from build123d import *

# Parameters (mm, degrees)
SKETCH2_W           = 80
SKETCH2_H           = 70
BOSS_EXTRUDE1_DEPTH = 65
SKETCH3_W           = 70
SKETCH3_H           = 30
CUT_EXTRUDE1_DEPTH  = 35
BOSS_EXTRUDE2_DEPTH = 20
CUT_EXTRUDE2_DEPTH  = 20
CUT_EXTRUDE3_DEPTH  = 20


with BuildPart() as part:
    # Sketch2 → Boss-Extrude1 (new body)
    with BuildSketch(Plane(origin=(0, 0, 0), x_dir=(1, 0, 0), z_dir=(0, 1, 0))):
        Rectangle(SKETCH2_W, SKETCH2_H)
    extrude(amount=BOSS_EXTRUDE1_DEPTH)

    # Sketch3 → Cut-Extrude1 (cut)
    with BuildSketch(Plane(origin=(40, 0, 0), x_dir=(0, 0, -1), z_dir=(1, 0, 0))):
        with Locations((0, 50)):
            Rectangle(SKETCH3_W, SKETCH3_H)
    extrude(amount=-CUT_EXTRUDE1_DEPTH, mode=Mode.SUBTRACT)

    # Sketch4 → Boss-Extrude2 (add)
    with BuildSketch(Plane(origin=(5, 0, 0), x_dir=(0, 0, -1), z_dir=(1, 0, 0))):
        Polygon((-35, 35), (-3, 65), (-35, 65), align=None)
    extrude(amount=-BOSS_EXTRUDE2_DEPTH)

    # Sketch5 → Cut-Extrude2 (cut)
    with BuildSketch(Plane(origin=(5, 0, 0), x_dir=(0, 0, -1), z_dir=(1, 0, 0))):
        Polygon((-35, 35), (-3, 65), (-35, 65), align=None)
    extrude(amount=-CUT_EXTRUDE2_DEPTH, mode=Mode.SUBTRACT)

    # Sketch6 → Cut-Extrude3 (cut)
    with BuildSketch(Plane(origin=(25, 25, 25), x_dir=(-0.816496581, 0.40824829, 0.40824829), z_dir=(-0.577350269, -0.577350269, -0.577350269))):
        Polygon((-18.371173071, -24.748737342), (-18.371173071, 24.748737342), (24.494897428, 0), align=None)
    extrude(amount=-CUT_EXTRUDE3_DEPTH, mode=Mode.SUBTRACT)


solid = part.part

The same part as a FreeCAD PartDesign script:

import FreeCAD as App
import Part
import Sketcher

V = App.Vector
Q = App.Units.Quantity

doc = App.newDocument("Part")
body = doc.addObject("PartDesign::Body", "Body")
body.AllowCompound = True

# Sketch on XZ plane
sketch1 = body.newObject("Sketcher::SketchObject", "Sketch")
sketch1.AttachmentSupport = (doc.getObject("XZ_Plane"), [""])
sketch1.MapMode = "FlatFace"
sketch1.addGeometry(Part.LineSegment(V(-40, -35, 0), V(-40, 35, 0)), False)
sketch1.addGeometry(Part.LineSegment(V(-40, 35, 0), V(40, 35, 0)), False)
sketch1.addGeometry(Part.LineSegment(V(40, 35, 0), V(40, -35, 0)), False)
sketch1.addGeometry(Part.LineSegment(V(40, -35, 0), V(-40, -35, 0)), False)
sketch1.addConstraint(Sketcher.Constraint("Coincident", 0, 2, 1, 1))
sketch1.addConstraint(Sketcher.Constraint("Coincident", 1, 2, 2, 1))
sketch1.addConstraint(Sketcher.Constraint("Coincident", 2, 2, 3, 1))
sketch1.addConstraint(Sketcher.Constraint("Coincident", 3, 2, 0, 1))
sketch1.addConstraint(Sketcher.Constraint("Vertical", 0))
sketch1.addConstraint(Sketcher.Constraint("Horizontal", 1))
sketch1.addConstraint(Sketcher.Constraint("Vertical", 2))
sketch1.addConstraint(Sketcher.Constraint("Horizontal", 3))
sketch1.addConstraint(Sketcher.Constraint("Symmetric", 0, 2, 2, 2, -1, 1))
sketch1.addConstraint(Sketcher.Constraint("DistanceX", 1, 1, 1, 2, 80.0))
sketch1.addConstraint(Sketcher.Constraint("DistanceY", 0, 1, 0, 2, 70.0))
pad1 = body.newObject("PartDesign::Pad", "Pad")
pad1.Profile = sketch1
pad1.Length = 65
pad1.Reversed = True

# Sketch on YZ plane
sketch2 = body.newObject("Sketcher::SketchObject", "Sketch001")
sketch2.AttachmentSupport = (doc.getObject("YZ_Plane"), [""])
sketch2.MapMode = "FlatFace"
sketch2.AttachmentOffset = App.Placement(V(0, 0, 40), App.Rotation())
sketch2.addGeometry(Part.LineSegment(V(65, 35, 0), V(35, 35, 0)), False)
sketch2.addGeometry(Part.LineSegment(V(35, 35, 0), V(35, -35, 0)), False)
sketch2.addGeometry(Part.LineSegment(V(35, -35, 0), V(65, -35, 0)), False)
sketch2.addGeometry(Part.LineSegment(V(65, -35, 0), V(65, 35, 0)), False)
sketch2.addConstraint(Sketcher.Constraint("Coincident", 0, 2, 1, 1))
sketch2.addConstraint(Sketcher.Constraint("Coincident", 1, 2, 2, 1))
sketch2.addConstraint(Sketcher.Constraint("Coincident", 2, 2, 3, 1))
sketch2.addConstraint(Sketcher.Constraint("Coincident", 3, 2, 0, 1))
sketch2.addConstraint(Sketcher.Constraint("Horizontal", 0))
sketch2.addConstraint(Sketcher.Constraint("Vertical", 1))
sketch2.addConstraint(Sketcher.Constraint("Horizontal", 2))
sketch2.addConstraint(Sketcher.Constraint("Vertical", 3))
sketch2.addConstraint(Sketcher.Constraint("DistanceX", 0, 2, 0, 1, 30.0))
sketch2.addConstraint(Sketcher.Constraint("DistanceY", 1, 2, 1, 1, 70.0))
sketch2.addConstraint(Sketcher.Constraint("DistanceX", -1, 1, 0, 2, 35.0))
sketch2.addConstraint(Sketcher.Constraint("DistanceY", -1, 1, 0, 2, 35.0))
pocket1 = body.newObject("PartDesign::Pocket", "Pocket")
pocket1.Profile = sketch2
pocket1.Length = 35

# Sketch on YZ plane
sketch3 = body.newObject("Sketcher::SketchObject", "Sketch002")
sketch3.AttachmentSupport = (doc.getObject("YZ_Plane"), [""])
sketch3.MapMode = "FlatFace"
sketch3.AttachmentOffset = App.Placement(V(0, 0, 5), App.Rotation())
sketch3.addGeometry(Part.LineSegment(V(35, 35, 0), V(65, 3, 0)), False)
sketch3.addGeometry(Part.LineSegment(V(65, 3, 0), V(65, 35, 0)), False)
sketch3.addGeometry(Part.LineSegment(V(65, 35, 0), V(35, 35, 0)), False)
sketch3.addConstraint(Sketcher.Constraint("Coincident", 0, 2, 1, 1))
sketch3.addConstraint(Sketcher.Constraint("Coincident", 1, 2, 2, 1))
sketch3.addConstraint(Sketcher.Constraint("Coincident", 2, 2, 0, 1))
sketch3.addConstraint(Sketcher.Constraint("Vertical", 1))
sketch3.addConstraint(Sketcher.Constraint("Horizontal", 2))
sketch3.addConstraint(Sketcher.Constraint("DistanceX", 2, 2, 2, 1, 30.0))
sketch3.addConstraint(Sketcher.Constraint("DistanceY", 1, 1, 1, 2, 32.0))
sketch3.addConstraint(Sketcher.Constraint("DistanceX", -1, 1, 0, 2, 65.0))
sketch3.addConstraint(Sketcher.Constraint("DistanceY", -1, 1, 0, 2, 3.0))
pad2 = body.newObject("PartDesign::Pad", "Pad001")
pad2.Profile = sketch3
pad2.Length = 20
pad2.Reversed = True

# Sketch on YZ plane
sketch4 = body.newObject("Sketcher::SketchObject", "Sketch003")
sketch4.AttachmentSupport = (doc.getObject("YZ_Plane"), [""])
sketch4.MapMode = "FlatFace"
sketch4.AttachmentOffset = App.Placement(V(0, 0, 5), App.Rotation())
sketch4.addGeometry(Part.LineSegment(V(35, 35, 0), V(65, 3, 0)), False)
sketch4.addGeometry(Part.LineSegment(V(65, 3, 0), V(65, 35, 0)), False)
sketch4.addGeometry(Part.LineSegment(V(65, 35, 0), V(35, 35, 0)), False)
sketch4.addConstraint(Sketcher.Constraint("Coincident", 0, 2, 1, 1))
sketch4.addConstraint(Sketcher.Constraint("Coincident", 1, 2, 2, 1))
sketch4.addConstraint(Sketcher.Constraint("Coincident", 2, 2, 0, 1))
sketch4.addConstraint(Sketcher.Constraint("Vertical", 1))
sketch4.addConstraint(Sketcher.Constraint("Horizontal", 2))
sketch4.addConstraint(Sketcher.Constraint("DistanceX", 2, 2, 2, 1, 30.0))
sketch4.addConstraint(Sketcher.Constraint("DistanceY", 1, 1, 1, 2, 32.0))
sketch4.addConstraint(Sketcher.Constraint("DistanceX", -1, 1, 0, 2, 65.0))
sketch4.addConstraint(Sketcher.Constraint("DistanceY", -1, 1, 0, 2, 3.0))
pocket2 = body.newObject("PartDesign::Pocket", "Pocket001")
pocket2.Profile = sketch4
pocket2.Length = 20

# Sketch on an angled plane
sketch5 = body.newObject("Sketcher::SketchObject", "Sketch004")
sketch5.Placement = App.Placement(V(25, 25, 25), App.Rotation(V(-0.816496581, 0.40824829, 0.40824829), V(0, 0.707106781, -0.707106781), V(-0.577350269, -0.577350269, -0.577350269), "ZXY"))
sketch5.addGeometry(Part.LineSegment(V(-18, 25, 0), V(-18, -25, 0)), False)
sketch5.addGeometry(Part.LineSegment(V(-18, -25, 0), V(24, 0, 0)), False)
sketch5.addGeometry(Part.LineSegment(V(24, 0, 0), V(-18, 25, 0)), False)
sketch5.addConstraint(Sketcher.Constraint("Coincident", 0, 2, 1, 1))
sketch5.addConstraint(Sketcher.Constraint("Coincident", 1, 2, 2, 1))
sketch5.addConstraint(Sketcher.Constraint("Coincident", 2, 2, 0, 1))
sketch5.addConstraint(Sketcher.Constraint("Vertical", 0))
sketch5.addConstraint(Sketcher.Constraint("PointOnObject", 1, 2, -1))
sketch5.addConstraint(Sketcher.Constraint("Equal", 1, 2))
sketch5.addConstraint(Sketcher.Constraint("Angle", 1, Q("30 deg")))
sketch5.addConstraint(Sketcher.Constraint("DistanceY", 0, 2, 0, 1, 49.497475))
sketch5.addConstraint(Sketcher.Constraint("DistanceX", 0, 2, -1, 1, 18.371173))
pocket3 = body.newObject("PartDesign::Pocket", "Pocket002")
pocket3.Profile = sketch5
pocket3.Length = 20

doc.recompute()
